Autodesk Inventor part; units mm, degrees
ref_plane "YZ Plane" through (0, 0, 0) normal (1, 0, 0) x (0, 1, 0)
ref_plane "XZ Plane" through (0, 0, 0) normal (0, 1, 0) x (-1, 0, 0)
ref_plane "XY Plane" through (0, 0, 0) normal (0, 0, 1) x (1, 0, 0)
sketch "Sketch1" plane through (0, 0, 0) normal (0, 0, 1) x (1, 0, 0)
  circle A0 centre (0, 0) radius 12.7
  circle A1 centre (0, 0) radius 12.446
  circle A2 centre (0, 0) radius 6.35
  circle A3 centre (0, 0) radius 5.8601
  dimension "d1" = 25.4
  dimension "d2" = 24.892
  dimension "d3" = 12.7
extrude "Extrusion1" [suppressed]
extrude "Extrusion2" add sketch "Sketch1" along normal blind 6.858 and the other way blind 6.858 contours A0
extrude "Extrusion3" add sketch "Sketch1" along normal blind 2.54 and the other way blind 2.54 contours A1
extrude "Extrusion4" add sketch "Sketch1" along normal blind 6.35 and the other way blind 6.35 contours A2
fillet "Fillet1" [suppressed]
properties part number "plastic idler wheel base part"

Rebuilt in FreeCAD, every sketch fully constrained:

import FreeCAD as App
import Part
import Sketcher
Q = App.Units.Quantity

doc = App.newDocument("Part")
body = doc.addObject("PartDesign::Body", "Body")

# Sketch on XY plane
sketch1 = body.newObject("Sketcher::SketchObject", "Sketch")
sketch1.AttachmentSupport = (doc.getObject("XY_Plane"), [""])
sketch1.MapMode = "FlatFace"
sketch1.addGeometry([
    Part.Circle(App.Vector(0, 0, 0), App.Vector(0, 0, 1), 13),
    Part.Circle(App.Vector(0, 0, 0), App.Vector(0, 0, 1), 12),
], False)
sketch1.addConstraint([
    Sketcher.Constraint("Coincident", 0, 3, -1, 1),
    Sketcher.Constraint("Coincident", 1, 3, -1, 1),
    Sketcher.Constraint("Diameter", 0, Q("1 in")),
    Sketcher.Constraint("Diameter", 1, Q("0.98 in")),
])
pad1 = body.newObject("PartDesign::Pad", "Pad")
pad1.Profile = sketch1
pad1.Type = "TwoLengths"
pad1.Length = Q("0.27 in")
pad1.Length2 = Q("0.27 in")

# Sketch on XY plane
sketch2 = body.newObject("Sketcher::SketchObject", "Sketch001")
sketch2.AttachmentSupport = (doc.getObject("XY_Plane"), [""])
sketch2.MapMode = "FlatFace"
sketch2.addGeometry([
    Part.Circle(App.Vector(0, 0, 0), App.Vector(0, 0, 1), 12),
    Part.Circle(App.Vector(0, 0, 0), App.Vector(0, 0, 1), 6),
], False)
sketch2.addConstraint([
    Sketcher.Constraint("Coincident", 0, 3, -1, 1),
    Sketcher.Constraint("Coincident", 1, 3, -1, 1),
    Sketcher.Constraint("Diameter", 1, Q("0.5 in")),
    Sketcher.Constraint("Diameter", 0, Q("0.98 in")),
])
pad2 = body.newObject("PartDesign::Pad", "Pad001")
pad2.Profile = sketch2
pad2.Type = "TwoLengths"
pad2.Length = Q("0.1 in")
pad2.Length2 = Q("0.1 in")

# Sketch on XY plane
sketch3 = body.newObject("Sketcher::SketchObject", "Sketch002")
sketch3.AttachmentSupport = (doc.getObject("XY_Plane"), [""])
sketch3.MapMode = "FlatFace"
sketch3.addGeometry([
    Part.Circle(App.Vector(0, 0, 0), App.Vector(0, 0, 1), 6),
    Part.Circle(App.Vector(0, 0, 0), App.Vector(0, 0, 1), 6),
], False)
sketch3.addConstraint([
    Sketcher.Constraint("Coincident", 0, 3, -1, 1),
    Sketcher.Constraint("Coincident", 1, 3, -1, 1),
    Sketcher.Constraint("Diameter", 0, Q("0.5 in")),
    Sketcher.Constraint("Diameter", 1, 11.7202),
])
pad3 = body.newObject("PartDesign::Pad", "Pad002")
pad3.Profile = sketch3
pad3.Type = "TwoLengths"
pad3.Length = Q("0.25 in")
pad3.Length2 = Q("0.25 in")

doc.recompute()
